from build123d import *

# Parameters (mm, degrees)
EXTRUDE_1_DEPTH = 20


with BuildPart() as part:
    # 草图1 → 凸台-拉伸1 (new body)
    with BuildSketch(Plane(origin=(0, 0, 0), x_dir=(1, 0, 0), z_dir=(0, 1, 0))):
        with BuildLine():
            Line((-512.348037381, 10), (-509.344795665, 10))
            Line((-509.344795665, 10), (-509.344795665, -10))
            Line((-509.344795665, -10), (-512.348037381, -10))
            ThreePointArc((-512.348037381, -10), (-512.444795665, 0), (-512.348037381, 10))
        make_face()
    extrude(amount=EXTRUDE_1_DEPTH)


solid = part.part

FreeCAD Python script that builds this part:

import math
import FreeCAD as App
import Part
import Sketcher
Q = App.Units.Quantity

doc = App.newDocument("Part")
body = doc.addObject("PartDesign::Body", "Body")

sketch1 = body.newObject("Sketcher::SketchObject", "Sketch")
sketch1.AttachmentSupport = (doc.getObject("XZ_Plane"), [""])
sketch1.MapMode = "FlatFace"
sketch1.addGeometry([
    Part.LineSegment(App.Vector(-509.3, -10, 0), App.Vector(-512.3, -10, 0)),
    Part.ArcOfCircle(Part.Circle(App.Vector(4.4, 0, 0), App.Vector(0, 0, 1), 516.8), math.radians(178.89), math.radians(181.11)),
    Part.LineSegment(App.Vector(-512.3, 10, 0), App.Vector(-509.3, 10, 0)),
    Part.LineSegment(App.Vector(-509.3, 10, 0), App.Vector(-509.3, -10, 0)),
], False)
sketch1.addConstraint([
    Sketcher.Constraint("Coincident", 0, 2, 1, 2),
    Sketcher.Constraint("Coincident", 1, 1, 2, 1),
    Sketcher.Constraint("Coincident", 2, 2, 3, 1),
    Sketcher.Constraint("Coincident", 3, 2, 0, 1),
    Sketcher.Constraint("Horizontal", 0),
    Sketcher.Constraint("Horizontal", 2),
    Sketcher.Constraint("Vertical", 3),
    Sketcher.Constraint("PointOnObject", 1, 3, -1),
    Sketcher.Constraint("Equal", 0, 2),
    Sketcher.Constraint("Radius", 1, Q("516.799999 mm")),
    Sketcher.Constraint("DistanceY", 3, 2, 3, 1, Q("20 mm")),
    Sketcher.Constraint("DistanceX", 2, 2, 1, 3, Q("513.699999 mm")),
    Sketcher.Constraint("DistanceX", -1, 1, 1, 3, Q("4.355203 mm")),
])
pad1 = body.newObject("PartDesign::Pad", "Pad")
pad1.Profile = sketch1
pad1.Length = 20
pad1.Reversed = True

doc.recompute()
